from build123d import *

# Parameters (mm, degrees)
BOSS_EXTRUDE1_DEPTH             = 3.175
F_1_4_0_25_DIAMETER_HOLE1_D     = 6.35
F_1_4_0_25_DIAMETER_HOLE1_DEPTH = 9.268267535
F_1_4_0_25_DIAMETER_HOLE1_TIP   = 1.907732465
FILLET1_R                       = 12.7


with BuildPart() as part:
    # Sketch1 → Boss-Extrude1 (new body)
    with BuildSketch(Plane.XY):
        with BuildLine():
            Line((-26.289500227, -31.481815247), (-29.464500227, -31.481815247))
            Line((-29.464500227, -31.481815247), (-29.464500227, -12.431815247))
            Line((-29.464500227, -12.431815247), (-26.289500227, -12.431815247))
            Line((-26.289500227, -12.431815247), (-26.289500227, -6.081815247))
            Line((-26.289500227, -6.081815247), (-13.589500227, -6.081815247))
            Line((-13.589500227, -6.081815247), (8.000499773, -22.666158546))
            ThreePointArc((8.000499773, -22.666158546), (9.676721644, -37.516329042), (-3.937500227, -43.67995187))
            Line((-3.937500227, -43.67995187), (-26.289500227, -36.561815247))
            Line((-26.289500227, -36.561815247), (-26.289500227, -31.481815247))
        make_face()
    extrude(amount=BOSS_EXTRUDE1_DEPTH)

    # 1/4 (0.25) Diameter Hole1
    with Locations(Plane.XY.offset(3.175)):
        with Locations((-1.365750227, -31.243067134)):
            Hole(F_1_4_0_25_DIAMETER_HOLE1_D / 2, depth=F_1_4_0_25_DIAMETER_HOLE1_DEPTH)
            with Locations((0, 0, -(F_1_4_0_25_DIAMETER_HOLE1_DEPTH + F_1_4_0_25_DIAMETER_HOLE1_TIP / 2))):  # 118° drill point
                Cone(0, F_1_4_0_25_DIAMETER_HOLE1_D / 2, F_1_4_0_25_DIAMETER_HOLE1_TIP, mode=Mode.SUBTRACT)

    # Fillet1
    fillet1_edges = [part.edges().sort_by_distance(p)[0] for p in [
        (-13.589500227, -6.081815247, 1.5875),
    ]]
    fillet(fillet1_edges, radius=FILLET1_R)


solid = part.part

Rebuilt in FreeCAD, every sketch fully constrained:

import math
import FreeCAD as App
import Part
import Sketcher

V = App.Vector
Q = App.Units.Quantity


def edges_at(feature, points):
    """Names of the edges that pass closest to the given points."""
    edges = feature.Shape.Edges
    near = lambda p: min(range(len(edges)), key=lambda i: edges[i].distToShape(Part.Vertex(*p))[0])
    return sorted({f"Edge{near(p) + 1}" for p in points})

doc = App.newDocument("Part")
params = doc.addObject("Spreadsheet::Sheet", "Params")
for row, (alias, value) in enumerate([
    ("sketch1_radius", "0.5 in"),
    ("sketch1_width", "0.5 in"),
    ("sketch1_height", "0.2 in"),
    ("sketch1_height2", "0.25 in"),
    ("sketch1_width2", "0.125 in"),
    ("pad1_length", "0.125 in"),
    ("sketch2_diameter", "0.25 in"),
    ("hole_diameter", "0.25 in"),
    ("hole_depth", "9.268268 mm"),
    ("fillet_radius", "0.5 in"),
], start=1):
    params.set(f"A{row}", alias)
    params.set(f"B{row}", "=" + value)
    params.setAlias(f"B{row}", alias)

body = doc.addObject("PartDesign::Body", "Body")

# Sketch on XY plane
sketch1 = body.newObject("Sketcher::SketchObject", "Sketch")
sketch1.AttachmentSupport = (doc.getObject("XY_Plane"), [""])
sketch1.MapMode = "FlatFace"
sketch1.addGeometry([
    Part.LineSegment(V(-29.5, -31.5, 0), V(-26.3, -31.5, 0)),  # 0
    Part.LineSegment(V(-26.3, -31.5, 0), V(-26.3, -36.6, 0)),  # 1
    Part.LineSegment(V(-26.3, -36.6, 0), V(-3.9, -43.7, 0)),  # 2
    Part.ArcOfCircle(Part.Circle(V(-1.4, -31.2, 0), V(0, 0, 1), 12.7), math.radians(-102), math.radians(42)),  # 3
    Part.LineSegment(V(8, -22.7, 0), V(-13.6, -6.1, 0)),  # 4
    Part.LineSegment(V(-13.6, -6.1, 0), V(-26.3, -6.1, 0)),  # 5
    Part.LineSegment(V(-26.3, -6.1, 0), V(-26.3, -12.4, 0)),  # 6
    Part.LineSegment(V(-26.3, -12.4, 0), V(-29.5, -12.4, 0)),  # 7
    Part.LineSegment(V(-29.5, -12.4, 0), V(-29.5, -31.5, 0)),  # 8
], False)
sketch1.addConstraint([
    Sketcher.Constraint("Coincident", 0, 2, 1, 1),
    Sketcher.Constraint("Coincident", 1, 2, 2, 1),
    Sketcher.Constraint("Coincident", 2, 2, 3, 1),
    Sketcher.Constraint("Coincident", 3, 2, 4, 1),
    Sketcher.Constraint("Coincident", 4, 2, 5, 1),
    Sketcher.Constraint("Coincident", 5, 2, 6, 1),
    Sketcher.Constraint("Coincident", 6, 2, 7, 1),
    Sketcher.Constraint("Coincident", 7, 2, 8, 1),
    Sketcher.Constraint("Coincident", 8, 2, 0, 1),
    Sketcher.Constraint("Horizontal", 0),
    Sketcher.Constraint("Vertical", 1),
    Sketcher.Constraint("Horizontal", 5),
    Sketcher.Constraint("Vertical", 6),
    Sketcher.Constraint("Horizontal", 7),
    Sketcher.Constraint("Vertical", 8),
    Sketcher.Constraint("Vertical", 1, 2, 5, 2),
    Sketcher.Constraint("Radius", 3, Q("0.5 in")),
    Sketcher.Constraint("DistanceX", 5, 2, 5, 1, Q("0.5 in")),
    Sketcher.Constraint("DistanceY", 1, 2, 1, 1, Q("0.2 in")),
    Sketcher.Constraint("DistanceY", 0, 2, 4, 2, Q("1 in")),
    Sketcher.Constraint("DistanceY", 6, 2, 6, 1, Q("0.25 in")),
    Sketcher.Constraint("DistanceX", 0, 1, 0, 2, Q("0.125 in")),
    Sketcher.Constraint("DistanceX", 1, 2, 2, 2, Q("0.88 in")),
    Sketcher.Constraint("DistanceX", 2, 2, 3, 2, Q("0.47 in")),
    Sketcher.Constraint("DistanceX", 0, 2, -1, 1, Q("26.2895 mm")),
    Sketcher.Constraint("Distance", 4, Q("27.224411 mm")),
    Sketcher.Constraint("DistanceX", 3, 3, -1, 1, Q("1.36575 mm")),
    Sketcher.Constraint("DistanceY", 2, 2, -1, 1, Q("43.679952 mm")),
])
sketch1.setExpression("Constraints[16]", "Params.sketch1_radius")
sketch1.setExpression("Constraints[17]", "Params.sketch1_width")
sketch1.setExpression("Constraints[18]", "Params.sketch1_height")
sketch1.setExpression("Constraints[20]", "Params.sketch1_height2")
sketch1.setExpression("Constraints[21]", "Params.sketch1_width2")
pad1 = body.newObject("PartDesign::Pad", "Pad")
pad1.Profile = sketch1
pad1.setExpression("Length", "Params.pad1_length")

# Sketch on XY plane
sketch2 = body.newObject("Sketcher::SketchObject", "Sketch001")
sketch2.AttachmentSupport = (doc.getObject("XY_Plane"), [""])
sketch2.MapMode = "FlatFace"
sketch2.AttachmentOffset = App.Placement(V(0, 0, 0.125 * 25.4), App.Rotation())
sketch2.addGeometry(Part.Circle(V(-1.4, -31.2, 0), V(0, 0, 1), 3.2), False)
sketch2.addConstraint([
    Sketcher.Constraint("Diameter", 0, Q("0.25 in")),
    Sketcher.Constraint("DistanceX", 0, 3, -1, 1, Q("1.36575 mm")),
    Sketcher.Constraint("DistanceY", 0, 3, -1, 1, Q("31.243067 mm")),
])
sketch2.setExpression("Constraints[0]", "Params.sketch2_diameter")
doc.recompute()
hole = body.newObject("PartDesign::Hole", "Hole")
hole.Profile = sketch2
hole.ThreadType = "None"
hole.setExpression("Diameter", "Params.hole_diameter")
hole.DepthType = "Dimension"
hole.setExpression("Depth", "Params.hole_depth")
hole.DrillPoint = "Angled"
hole.DrillPointAngle = 118
doc.recompute()

fillet = body.newObject("PartDesign::Fillet", "Fillet")
fillet.Base = (hole, edges_at(hole, [(-13.59, -6.082, 1.587)]))
fillet.setExpression("Radius", "Params.fillet_radius")

doc.recompute()
